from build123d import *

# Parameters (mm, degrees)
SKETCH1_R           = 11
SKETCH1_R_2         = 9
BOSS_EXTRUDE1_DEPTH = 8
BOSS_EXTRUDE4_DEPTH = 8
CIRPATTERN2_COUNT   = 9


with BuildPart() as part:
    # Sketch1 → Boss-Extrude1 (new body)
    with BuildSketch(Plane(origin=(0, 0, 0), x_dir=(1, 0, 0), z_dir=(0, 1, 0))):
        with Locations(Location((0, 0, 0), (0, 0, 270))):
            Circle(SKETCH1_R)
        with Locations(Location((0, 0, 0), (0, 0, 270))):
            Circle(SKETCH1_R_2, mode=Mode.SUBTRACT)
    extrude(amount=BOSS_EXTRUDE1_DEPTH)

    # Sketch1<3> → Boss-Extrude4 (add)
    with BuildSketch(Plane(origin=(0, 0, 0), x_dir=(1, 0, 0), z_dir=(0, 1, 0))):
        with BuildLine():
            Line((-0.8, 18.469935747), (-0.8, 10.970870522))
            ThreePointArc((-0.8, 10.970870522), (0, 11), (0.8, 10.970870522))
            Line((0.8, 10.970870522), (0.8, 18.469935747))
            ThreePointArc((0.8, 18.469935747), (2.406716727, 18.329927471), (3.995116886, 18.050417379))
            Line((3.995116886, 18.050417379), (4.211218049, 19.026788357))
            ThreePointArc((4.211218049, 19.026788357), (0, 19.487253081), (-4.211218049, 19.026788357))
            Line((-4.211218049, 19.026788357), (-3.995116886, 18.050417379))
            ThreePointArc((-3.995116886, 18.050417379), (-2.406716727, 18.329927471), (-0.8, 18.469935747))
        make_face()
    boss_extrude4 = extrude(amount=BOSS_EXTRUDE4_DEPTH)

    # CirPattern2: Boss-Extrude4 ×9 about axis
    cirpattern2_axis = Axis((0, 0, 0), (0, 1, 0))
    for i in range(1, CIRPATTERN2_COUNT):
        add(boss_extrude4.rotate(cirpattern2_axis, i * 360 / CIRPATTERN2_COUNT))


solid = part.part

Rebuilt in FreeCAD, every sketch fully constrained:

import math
import FreeCAD as App
import Part
import Sketcher
Q = App.Units.Quantity

doc = App.newDocument("Part")
params = doc.addObject("Spreadsheet::Sheet", "Params")
for row, (alias, value) in enumerate([
    ("sketch1_diameter", "22 mm"),
    ("sketch1_diameter2", "18 mm"),
    ("pad1_length", "8 mm"),
    ("sketch2_radius", "11 mm"),
    ("sketch2_length", "1 mm"),
    ("pad2_length", "8 mm"),
], start=1):
    params.set(f"A{row}", alias)
    params.set(f"B{row}", "=" + value)
    params.setAlias(f"B{row}", alias)

body = doc.addObject("PartDesign::Body", "Body")

# Sketch on XZ plane
sketch1 = body.newObject("Sketcher::SketchObject", "Sketch")
sketch1.AttachmentSupport = (doc.getObject("XZ_Plane"), [""])
sketch1.MapMode = "FlatFace"
sketch1.addGeometry([
    Part.Circle(App.Vector(0, 0, 0), App.Vector(0, 0, 1), 11),
    Part.Circle(App.Vector(0, 0, 0), App.Vector(0, 0, 1), 9),
], False)
sketch1.addConstraint([
    Sketcher.Constraint("Coincident", 0, 3, -1, 1),
    Sketcher.Constraint("Coincident", 1, 3, -1, 1),
    Sketcher.Constraint("Diameter", 0, Q("22 mm")),
    Sketcher.Constraint("Diameter", 1, Q("18 mm")),
])
sketch1.setExpression("Constraints[2]", "Params.sketch1_diameter")
sketch1.setExpression("Constraints[3]", "Params.sketch1_diameter2")
pad1 = body.newObject("PartDesign::Pad", "Pad")
pad1.Profile = sketch1
pad1.setExpression("Length", "Params.pad1_length")
pad1.Reversed = True

# Sketch on XZ plane
sketch2 = body.newObject("Sketcher::SketchObject", "Sketch001")
sketch2.AttachmentSupport = (doc.getObject("XZ_Plane"), [""])
sketch2.MapMode = "FlatFace"
sketch2.addGeometry([
    Part.LineSegment(App.Vector(-0.8, -18.469936, 0), App.Vector(-0.8, -10.970871, 0)),  # 0
    Part.ArcOfCircle(Part.Circle(App.Vector(0, 0, 0), App.Vector(0, 0, 1), 11), math.radians(-94.170648), math.radians(-85.829352)),  # 1
    Part.LineSegment(App.Vector(0.8, -10.970871, 0), App.Vector(0.8, -18.469936, 0)),  # 2
    Part.ArcOfCircle(Part.Circle(App.Vector(0, 0, 0), App.Vector(0, 0, 1), 18.487253), math.radians(-87.519862), math.radians(-77.519862)),  # 3
    Part.LineSegment(App.Vector(3.995117, -18.050417, 0), App.Vector(4.211218, -19.026788, 0)),  # 4
    Part.ArcOfCircle(Part.Circle(App.Vector(0, 0, 0), App.Vector(0, 0, 1), 19.487253), math.radians(-102.480138), math.radians(-77.519862)),  # 5
    Part.LineSegment(App.Vector(-4.211218, -19.026788, 0), App.Vector(-3.995117, -18.050417, 0)),  # 6
    Part.ArcOfCircle(Part.Circle(App.Vector(0, 0, 0), App.Vector(0, 0, 1), 18.487253), math.radians(-102.480138), math.radians(-92.480138)),  # 7
], False)
sketch2.addConstraint([
    Sketcher.Constraint("Coincident", 0, 2, 1, 1),
    Sketcher.Constraint("Coincident", 1, 2, 2, 1),
    Sketcher.Constraint("Coincident", 2, 2, 3, 1),
    Sketcher.Constraint("Coincident", 3, 2, 4, 1),
    Sketcher.Constraint("Coincident", 4, 2, 5, 2),
    Sketcher.Constraint("Coincident", 5, 1, 6, 1),
    Sketcher.Constraint("Coincident", 6, 2, 7, 1),
    Sketcher.Constraint("Coincident", 7, 2, 0, 1),
    Sketcher.Constraint("Vertical", 0),
    Sketcher.Constraint("Vertical", 2),
    Sketcher.Constraint("Coincident", 1, 3, -1, 1),
    Sketcher.Constraint("Coincident", 3, 3, -1, 1),
    Sketcher.Constraint("Coincident", 5, 3, -1, 1),
    Sketcher.Constraint("Coincident", 7, 3, -1, 1),
    Sketcher.Constraint("Equal", 3, 7),
    Sketcher.Constraint("Horizontal", 0, 2, 1, 2),
    Sketcher.Constraint("Horizontal", 4, 2, 5, 1),
    Sketcher.Constraint("Horizontal", 3, 2, 6, 2),
    Sketcher.Constraint("Radius", 1, Q("11 mm")),
    Sketcher.Constraint("Distance", 4, Q("1 mm")),
    Sketcher.Constraint("DistanceX", 0, 2, -1, 1, Q("0.8 mm")),
    Sketcher.Constraint("Radius", 3, Q("18.487253 mm")),
    Sketcher.Constraint("DistanceX", 3, 2, 4, 2, Q("0.216101 mm")),
    Sketcher.Constraint("DistanceX", -1, 1, 4, 2, Q("4.211218 mm")),
])
sketch2.setExpression("Constraints[18]", "Params.sketch2_radius")
sketch2.setExpression("Constraints[19]", "Params.sketch2_length")
pad2 = body.newObject("PartDesign::Pad", "Pad001")
pad2.Profile = sketch2
pad2.setExpression("Length", "Params.pad2_length")
pad2.Reversed = True
doc.recompute()

polarpattern = body.newObject("PartDesign::PolarPattern", "PolarPattern")
polarpattern.Originals = [pad2]
polarpattern.Axis = (doc.getObject("Y_Axis"), [""])
polarpattern.Angle = 360
polarpattern.Occurrences = 9
body.Tip = polarpattern

doc.recompute()
